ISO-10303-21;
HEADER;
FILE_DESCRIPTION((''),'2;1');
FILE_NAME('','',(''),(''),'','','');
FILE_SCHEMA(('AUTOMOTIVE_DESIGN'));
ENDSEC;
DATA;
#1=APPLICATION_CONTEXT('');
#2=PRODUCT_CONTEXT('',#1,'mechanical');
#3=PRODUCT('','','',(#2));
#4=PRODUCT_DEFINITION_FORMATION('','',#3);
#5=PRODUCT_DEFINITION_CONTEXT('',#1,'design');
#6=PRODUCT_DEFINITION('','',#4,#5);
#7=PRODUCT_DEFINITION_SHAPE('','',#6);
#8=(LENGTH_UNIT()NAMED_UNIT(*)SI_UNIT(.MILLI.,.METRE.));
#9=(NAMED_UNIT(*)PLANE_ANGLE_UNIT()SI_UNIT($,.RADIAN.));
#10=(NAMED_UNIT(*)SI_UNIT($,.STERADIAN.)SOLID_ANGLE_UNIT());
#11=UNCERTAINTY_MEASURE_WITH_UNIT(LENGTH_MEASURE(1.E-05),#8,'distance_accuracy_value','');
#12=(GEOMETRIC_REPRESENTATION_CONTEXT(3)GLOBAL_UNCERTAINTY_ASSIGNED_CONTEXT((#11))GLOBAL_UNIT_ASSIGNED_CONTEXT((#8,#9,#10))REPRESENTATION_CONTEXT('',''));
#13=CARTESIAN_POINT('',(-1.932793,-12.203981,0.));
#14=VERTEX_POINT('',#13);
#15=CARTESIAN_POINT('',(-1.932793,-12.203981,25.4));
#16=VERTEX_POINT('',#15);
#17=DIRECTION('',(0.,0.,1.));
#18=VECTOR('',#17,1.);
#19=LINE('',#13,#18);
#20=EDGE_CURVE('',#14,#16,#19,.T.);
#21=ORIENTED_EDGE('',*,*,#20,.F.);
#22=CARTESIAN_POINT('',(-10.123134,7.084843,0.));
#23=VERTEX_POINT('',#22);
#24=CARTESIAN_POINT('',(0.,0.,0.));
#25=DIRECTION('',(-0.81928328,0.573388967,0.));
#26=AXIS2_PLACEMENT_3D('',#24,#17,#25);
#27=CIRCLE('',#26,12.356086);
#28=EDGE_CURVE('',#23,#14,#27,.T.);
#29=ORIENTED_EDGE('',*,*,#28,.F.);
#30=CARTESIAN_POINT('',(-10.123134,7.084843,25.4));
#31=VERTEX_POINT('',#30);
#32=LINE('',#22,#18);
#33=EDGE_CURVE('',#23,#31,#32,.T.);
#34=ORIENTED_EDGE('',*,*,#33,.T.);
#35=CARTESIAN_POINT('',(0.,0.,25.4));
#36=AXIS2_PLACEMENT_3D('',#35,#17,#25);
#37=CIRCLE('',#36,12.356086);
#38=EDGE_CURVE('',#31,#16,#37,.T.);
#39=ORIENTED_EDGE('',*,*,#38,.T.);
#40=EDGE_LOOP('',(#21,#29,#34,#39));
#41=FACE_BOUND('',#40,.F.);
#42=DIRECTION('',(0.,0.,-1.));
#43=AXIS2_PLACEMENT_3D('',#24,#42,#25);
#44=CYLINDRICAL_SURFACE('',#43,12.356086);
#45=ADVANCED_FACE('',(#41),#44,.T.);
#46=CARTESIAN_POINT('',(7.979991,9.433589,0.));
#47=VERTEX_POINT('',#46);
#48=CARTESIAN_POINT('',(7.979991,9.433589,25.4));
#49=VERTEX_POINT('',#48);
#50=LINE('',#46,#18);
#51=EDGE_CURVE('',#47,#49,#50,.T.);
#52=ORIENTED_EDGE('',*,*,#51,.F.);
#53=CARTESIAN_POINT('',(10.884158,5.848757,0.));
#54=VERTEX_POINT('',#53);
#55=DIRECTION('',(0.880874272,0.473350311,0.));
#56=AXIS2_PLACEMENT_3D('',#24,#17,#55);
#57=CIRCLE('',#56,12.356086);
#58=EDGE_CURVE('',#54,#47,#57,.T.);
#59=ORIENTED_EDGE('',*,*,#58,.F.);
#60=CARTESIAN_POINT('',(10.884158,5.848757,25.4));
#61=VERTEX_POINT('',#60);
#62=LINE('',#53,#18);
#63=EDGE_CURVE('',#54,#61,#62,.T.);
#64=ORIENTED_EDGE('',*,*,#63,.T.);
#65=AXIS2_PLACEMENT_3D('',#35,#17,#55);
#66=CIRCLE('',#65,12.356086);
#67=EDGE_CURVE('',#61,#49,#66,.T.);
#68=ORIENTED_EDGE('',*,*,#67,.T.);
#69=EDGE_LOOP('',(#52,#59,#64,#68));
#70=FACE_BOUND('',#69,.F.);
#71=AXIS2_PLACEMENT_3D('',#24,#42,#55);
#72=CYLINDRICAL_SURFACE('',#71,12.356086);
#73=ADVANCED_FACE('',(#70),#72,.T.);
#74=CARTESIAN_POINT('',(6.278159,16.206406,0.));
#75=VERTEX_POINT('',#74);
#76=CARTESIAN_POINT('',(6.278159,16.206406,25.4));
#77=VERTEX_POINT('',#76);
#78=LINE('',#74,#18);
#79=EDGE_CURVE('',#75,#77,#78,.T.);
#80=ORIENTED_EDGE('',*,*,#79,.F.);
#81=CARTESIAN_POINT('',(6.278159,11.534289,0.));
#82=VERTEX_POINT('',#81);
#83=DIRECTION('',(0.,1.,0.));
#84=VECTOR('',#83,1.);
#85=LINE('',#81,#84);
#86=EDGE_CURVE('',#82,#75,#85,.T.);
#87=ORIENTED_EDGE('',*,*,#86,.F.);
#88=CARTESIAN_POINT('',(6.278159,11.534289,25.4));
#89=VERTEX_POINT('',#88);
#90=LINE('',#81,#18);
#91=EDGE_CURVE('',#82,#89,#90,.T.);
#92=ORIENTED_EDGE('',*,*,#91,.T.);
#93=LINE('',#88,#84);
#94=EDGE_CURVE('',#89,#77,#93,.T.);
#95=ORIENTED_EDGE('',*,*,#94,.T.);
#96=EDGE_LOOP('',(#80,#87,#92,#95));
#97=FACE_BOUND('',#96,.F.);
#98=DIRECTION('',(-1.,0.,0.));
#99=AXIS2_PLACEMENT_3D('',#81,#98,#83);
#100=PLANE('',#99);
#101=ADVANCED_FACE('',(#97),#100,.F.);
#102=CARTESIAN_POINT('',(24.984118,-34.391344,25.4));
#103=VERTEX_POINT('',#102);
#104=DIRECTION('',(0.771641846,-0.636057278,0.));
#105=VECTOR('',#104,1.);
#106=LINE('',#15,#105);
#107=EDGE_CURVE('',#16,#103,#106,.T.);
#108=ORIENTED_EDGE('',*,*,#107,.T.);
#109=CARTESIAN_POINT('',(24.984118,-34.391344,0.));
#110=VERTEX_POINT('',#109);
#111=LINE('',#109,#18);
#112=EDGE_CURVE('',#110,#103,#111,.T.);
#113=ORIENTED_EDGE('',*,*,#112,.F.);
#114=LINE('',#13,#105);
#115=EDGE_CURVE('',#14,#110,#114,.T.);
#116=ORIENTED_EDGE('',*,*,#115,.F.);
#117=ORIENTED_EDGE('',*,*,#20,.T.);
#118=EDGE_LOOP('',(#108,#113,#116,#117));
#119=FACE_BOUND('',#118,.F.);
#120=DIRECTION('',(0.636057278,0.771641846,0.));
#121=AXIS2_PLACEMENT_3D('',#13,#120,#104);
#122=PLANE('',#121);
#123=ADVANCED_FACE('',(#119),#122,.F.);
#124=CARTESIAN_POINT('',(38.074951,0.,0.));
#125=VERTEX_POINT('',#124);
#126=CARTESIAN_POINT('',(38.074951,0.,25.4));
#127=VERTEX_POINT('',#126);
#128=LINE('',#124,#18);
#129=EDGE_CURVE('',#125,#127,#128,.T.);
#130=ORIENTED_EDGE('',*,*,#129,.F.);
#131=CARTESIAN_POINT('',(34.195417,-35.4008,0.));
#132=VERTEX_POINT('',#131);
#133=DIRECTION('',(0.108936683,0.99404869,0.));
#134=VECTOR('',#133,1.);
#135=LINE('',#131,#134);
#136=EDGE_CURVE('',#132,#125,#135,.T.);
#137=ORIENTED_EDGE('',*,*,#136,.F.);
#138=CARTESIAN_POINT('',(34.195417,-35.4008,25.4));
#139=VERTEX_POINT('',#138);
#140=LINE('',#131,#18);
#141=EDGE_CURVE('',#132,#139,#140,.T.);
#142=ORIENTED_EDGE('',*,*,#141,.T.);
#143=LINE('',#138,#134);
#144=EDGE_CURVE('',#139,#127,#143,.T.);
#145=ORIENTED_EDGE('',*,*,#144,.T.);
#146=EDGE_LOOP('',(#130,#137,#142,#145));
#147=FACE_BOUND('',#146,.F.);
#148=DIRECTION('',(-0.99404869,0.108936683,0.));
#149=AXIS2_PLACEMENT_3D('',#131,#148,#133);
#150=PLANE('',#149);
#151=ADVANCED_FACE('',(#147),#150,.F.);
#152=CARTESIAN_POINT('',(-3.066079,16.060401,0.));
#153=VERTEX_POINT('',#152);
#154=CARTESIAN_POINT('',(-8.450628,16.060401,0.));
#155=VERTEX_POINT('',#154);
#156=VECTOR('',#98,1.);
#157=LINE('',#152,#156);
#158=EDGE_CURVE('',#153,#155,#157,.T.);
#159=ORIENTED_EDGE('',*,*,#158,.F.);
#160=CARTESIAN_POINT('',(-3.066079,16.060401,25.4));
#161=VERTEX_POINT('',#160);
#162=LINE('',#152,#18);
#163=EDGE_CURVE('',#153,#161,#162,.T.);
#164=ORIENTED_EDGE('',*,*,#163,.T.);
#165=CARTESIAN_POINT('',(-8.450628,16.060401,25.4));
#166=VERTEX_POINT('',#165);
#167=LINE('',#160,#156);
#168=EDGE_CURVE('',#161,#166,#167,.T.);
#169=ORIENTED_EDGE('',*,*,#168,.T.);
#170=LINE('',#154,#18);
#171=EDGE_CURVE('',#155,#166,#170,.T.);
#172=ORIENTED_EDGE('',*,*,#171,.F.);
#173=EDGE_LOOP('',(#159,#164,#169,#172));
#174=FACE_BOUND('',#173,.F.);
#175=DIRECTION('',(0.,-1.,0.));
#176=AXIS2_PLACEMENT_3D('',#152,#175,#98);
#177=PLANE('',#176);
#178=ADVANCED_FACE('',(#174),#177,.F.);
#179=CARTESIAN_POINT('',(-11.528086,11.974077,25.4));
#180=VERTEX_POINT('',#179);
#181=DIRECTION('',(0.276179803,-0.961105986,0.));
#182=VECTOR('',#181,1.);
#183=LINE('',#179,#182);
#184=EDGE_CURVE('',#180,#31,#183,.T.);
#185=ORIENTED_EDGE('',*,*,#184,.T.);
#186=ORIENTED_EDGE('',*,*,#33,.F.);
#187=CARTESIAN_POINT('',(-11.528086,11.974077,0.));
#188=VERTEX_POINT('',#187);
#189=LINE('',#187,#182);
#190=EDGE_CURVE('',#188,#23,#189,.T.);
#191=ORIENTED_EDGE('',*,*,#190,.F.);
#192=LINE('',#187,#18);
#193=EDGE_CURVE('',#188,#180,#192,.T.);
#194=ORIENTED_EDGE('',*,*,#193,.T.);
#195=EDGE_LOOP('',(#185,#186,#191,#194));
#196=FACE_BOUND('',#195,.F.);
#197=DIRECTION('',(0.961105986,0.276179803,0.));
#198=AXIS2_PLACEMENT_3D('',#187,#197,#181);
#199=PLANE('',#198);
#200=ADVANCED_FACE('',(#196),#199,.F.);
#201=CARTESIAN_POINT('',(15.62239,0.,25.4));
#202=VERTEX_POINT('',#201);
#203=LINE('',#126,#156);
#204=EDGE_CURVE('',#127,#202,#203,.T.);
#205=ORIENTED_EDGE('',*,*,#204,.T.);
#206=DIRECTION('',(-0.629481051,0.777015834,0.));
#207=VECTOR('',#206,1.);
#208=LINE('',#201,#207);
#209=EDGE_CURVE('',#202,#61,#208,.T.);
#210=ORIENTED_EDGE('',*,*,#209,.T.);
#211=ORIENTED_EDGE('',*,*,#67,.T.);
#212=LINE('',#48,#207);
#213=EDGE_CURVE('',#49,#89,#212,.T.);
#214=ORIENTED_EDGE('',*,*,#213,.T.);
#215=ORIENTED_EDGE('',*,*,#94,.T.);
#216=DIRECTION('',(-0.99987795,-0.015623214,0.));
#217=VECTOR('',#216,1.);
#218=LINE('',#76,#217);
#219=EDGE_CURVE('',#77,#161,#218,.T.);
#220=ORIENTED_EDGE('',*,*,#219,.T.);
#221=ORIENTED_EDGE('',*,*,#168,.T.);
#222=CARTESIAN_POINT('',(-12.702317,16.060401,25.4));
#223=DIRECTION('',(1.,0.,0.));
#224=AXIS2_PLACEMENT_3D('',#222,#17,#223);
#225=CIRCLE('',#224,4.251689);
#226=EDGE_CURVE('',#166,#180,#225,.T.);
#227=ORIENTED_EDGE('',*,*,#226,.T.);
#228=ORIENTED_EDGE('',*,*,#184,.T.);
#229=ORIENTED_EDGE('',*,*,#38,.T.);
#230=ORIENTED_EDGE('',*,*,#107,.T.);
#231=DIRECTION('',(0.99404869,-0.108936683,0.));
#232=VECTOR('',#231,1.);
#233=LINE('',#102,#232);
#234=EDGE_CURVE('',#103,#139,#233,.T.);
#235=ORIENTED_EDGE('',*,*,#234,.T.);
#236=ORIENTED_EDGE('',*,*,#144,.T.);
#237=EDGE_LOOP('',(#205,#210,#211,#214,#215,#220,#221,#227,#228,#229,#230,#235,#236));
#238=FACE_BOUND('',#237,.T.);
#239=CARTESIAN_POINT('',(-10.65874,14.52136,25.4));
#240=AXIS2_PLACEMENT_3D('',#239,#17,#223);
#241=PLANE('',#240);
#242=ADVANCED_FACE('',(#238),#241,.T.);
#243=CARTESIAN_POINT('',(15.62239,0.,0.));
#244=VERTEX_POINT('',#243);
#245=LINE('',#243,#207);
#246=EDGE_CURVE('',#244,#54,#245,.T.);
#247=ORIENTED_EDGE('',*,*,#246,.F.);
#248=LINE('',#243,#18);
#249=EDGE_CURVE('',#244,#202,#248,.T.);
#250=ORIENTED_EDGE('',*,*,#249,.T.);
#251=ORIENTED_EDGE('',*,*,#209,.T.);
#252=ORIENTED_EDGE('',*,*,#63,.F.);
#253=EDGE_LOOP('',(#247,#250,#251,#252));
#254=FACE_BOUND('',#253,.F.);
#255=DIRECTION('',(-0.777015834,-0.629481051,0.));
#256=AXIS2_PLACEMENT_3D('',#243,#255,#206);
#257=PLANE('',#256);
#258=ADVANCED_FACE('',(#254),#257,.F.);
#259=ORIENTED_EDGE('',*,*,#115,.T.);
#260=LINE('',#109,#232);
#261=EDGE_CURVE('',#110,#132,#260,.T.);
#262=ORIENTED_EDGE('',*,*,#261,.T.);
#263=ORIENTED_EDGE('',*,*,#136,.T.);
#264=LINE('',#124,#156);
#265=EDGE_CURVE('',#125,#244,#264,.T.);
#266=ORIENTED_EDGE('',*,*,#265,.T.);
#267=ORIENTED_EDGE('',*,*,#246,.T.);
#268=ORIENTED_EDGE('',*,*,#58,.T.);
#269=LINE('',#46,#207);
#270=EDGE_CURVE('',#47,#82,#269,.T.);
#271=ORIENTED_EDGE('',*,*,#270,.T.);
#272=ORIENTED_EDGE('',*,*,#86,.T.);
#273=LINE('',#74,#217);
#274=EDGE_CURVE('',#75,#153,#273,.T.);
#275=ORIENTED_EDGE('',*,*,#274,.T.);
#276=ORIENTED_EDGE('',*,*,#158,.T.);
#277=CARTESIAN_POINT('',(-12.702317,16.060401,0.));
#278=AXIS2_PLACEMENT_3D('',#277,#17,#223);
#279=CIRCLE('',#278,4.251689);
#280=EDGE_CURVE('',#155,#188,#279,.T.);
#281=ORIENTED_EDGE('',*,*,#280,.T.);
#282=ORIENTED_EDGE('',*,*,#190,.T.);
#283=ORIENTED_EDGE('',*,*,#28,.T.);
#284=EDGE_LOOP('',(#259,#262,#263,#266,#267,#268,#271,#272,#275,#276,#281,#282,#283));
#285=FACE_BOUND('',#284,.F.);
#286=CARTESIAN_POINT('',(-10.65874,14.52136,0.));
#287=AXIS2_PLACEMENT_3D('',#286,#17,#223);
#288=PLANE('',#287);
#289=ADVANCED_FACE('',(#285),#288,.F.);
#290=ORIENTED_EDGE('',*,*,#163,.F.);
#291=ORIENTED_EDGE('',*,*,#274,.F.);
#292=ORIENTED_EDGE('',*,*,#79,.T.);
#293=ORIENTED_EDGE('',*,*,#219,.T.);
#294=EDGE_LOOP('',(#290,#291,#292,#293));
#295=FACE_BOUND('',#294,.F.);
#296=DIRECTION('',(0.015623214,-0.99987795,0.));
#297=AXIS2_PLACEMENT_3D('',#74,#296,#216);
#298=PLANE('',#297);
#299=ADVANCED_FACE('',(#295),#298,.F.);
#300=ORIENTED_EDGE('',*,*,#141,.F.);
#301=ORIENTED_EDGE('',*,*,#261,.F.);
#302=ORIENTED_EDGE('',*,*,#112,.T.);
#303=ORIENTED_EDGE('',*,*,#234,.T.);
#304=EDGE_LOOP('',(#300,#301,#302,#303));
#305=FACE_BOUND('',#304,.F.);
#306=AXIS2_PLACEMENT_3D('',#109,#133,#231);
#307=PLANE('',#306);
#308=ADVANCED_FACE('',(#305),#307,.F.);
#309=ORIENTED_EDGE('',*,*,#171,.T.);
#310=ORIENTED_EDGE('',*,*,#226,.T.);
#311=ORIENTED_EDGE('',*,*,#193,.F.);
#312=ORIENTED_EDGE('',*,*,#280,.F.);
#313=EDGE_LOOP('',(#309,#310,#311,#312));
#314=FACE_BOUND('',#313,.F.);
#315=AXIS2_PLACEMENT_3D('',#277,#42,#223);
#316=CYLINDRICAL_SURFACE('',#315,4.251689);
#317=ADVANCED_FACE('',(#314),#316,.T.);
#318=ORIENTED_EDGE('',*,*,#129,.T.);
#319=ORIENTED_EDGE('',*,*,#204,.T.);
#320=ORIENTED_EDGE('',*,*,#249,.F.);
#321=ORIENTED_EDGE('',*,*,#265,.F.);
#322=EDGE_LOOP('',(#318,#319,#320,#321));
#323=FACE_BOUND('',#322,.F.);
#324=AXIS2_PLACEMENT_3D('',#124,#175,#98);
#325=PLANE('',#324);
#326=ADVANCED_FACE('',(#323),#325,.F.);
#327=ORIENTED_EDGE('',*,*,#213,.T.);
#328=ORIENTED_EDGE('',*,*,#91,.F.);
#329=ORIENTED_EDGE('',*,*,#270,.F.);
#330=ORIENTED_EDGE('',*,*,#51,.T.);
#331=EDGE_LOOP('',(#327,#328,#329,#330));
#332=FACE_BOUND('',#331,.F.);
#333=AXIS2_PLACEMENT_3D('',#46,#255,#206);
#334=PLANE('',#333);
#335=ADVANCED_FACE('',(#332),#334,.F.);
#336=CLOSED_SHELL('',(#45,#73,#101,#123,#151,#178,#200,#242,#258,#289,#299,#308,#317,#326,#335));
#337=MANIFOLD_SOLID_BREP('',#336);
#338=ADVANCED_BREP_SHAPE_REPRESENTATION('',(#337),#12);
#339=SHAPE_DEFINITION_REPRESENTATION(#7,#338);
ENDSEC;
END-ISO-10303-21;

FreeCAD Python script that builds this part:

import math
import FreeCAD as App
import Part
import Sketcher
Q = App.Units.Quantity

doc = App.newDocument("Part")
body = doc.addObject("PartDesign::Body", "Body")

sketch1 = doc.addObject("Sketcher::SketchObject", "Sketch")
body.addObject(sketch1)
sketch1.AttachmentSupport = (doc.XY_Plane, [""])
sketch1.MapMode = "FlatFace"
sketch1.addGeometry([
    Part.ArcOfCircle(Part.Circle(App.Vector(-12.7, 16.1, 0), App.Vector(0, 0, 1), 4.3), math.radians(0), math.radians(286)),
    Part.LineSegment(App.Vector(-11.5, 12, 0), App.Vector(-10.1, 7.1, 0)),
    Part.ArcOfCircle(Part.Circle(App.Vector(0, 0, 0), App.Vector(0, 0, 1), 12.4), math.radians(145), math.radians(261)),
    Part.LineSegment(App.Vector(-1.9, -12.2, 0), App.Vector(25, -34.4, 0)),
    Part.LineSegment(App.Vector(25, -34.4, 0), App.Vector(34.2, -35.4, 0)),
    Part.LineSegment(App.Vector(34.2, -35.4, 0), App.Vector(38.1, 0, 0)),
    Part.LineSegment(App.Vector(38.1, 0, 0), App.Vector(15.6, 0, 0)),
    Part.LineSegment(App.Vector(15.6, 0, 0), App.Vector(10.9, 5.8, 0)),
    Part.ArcOfCircle(Part.Circle(App.Vector(0, 0, 0), App.Vector(0, 0, 1), 12.4), math.radians(28), math.radians(50)),
    Part.LineSegment(App.Vector(8, 9.4, 0), App.Vector(6.3, 11.5, 0)),
    Part.LineSegment(App.Vector(6.3, 11.5, 0), App.Vector(6.3, 16.2, 0)),
    Part.LineSegment(App.Vector(6.3, 16.2, 0), App.Vector(-3.1, 16.1, 0)),
    Part.LineSegment(App.Vector(-3.1, 16.1, 0), App.Vector(-8.5, 16.1, 0)),
], False)
sketch1.addConstraint([
    Sketcher.Constraint("Coincident", 0, 2, 1, 1),
    Sketcher.Constraint("Coincident", 1, 2, 2, 1),
    Sketcher.Constraint("Coincident", 2, 2, 3, 1),
    Sketcher.Constraint("Coincident", 3, 2, 4, 1),
    Sketcher.Constraint("Coincident", 4, 2, 5, 1),
    Sketcher.Constraint("Coincident", 5, 2, 6, 1),
    Sketcher.Constraint("Coincident", 6, 2, 7, 1),
    Sketcher.Constraint("Coincident", 7, 2, 8, 1),
    Sketcher.Constraint("Coincident", 8, 2, 9, 1),
    Sketcher.Constraint("Coincident", 9, 2, 10, 1),
    Sketcher.Constraint("Coincident", 10, 2, 11, 1),
    Sketcher.Constraint("Coincident", 11, 2, 12, 1),
    Sketcher.Constraint("Coincident", 12, 2, 0, 1),
    Sketcher.Constraint("Horizontal", 6),
    Sketcher.Constraint("Vertical", 10),
    Sketcher.Constraint("Horizontal", 12),
    Sketcher.Constraint("Coincident", 2, 3, -1, 1),
    Sketcher.Constraint("Coincident", 8, 3, -1, 1),
    Sketcher.Constraint("Equal", 2, 8),
    Sketcher.Constraint("PointOnObject", 5, 2, -1),
    Sketcher.Constraint("Perpendicular", 4, 5),
    Sketcher.Constraint("Parallel", 7, 9),
    Sketcher.Constraint("Horizontal", 0, 3, 11, 2),
    Sketcher.Constraint("Radius", 0, Q("4.251689 mm")),
    Sketcher.Constraint("Radius", 2, Q("12.356086 mm")),
    Sketcher.Constraint("DistanceX", 6, 2, 6, 1, Q("22.452561 mm")),
    Sketcher.Constraint("DistanceX", 12, 2, 12, 1, Q("5.384549 mm")),
    Sketcher.Constraint("DistanceY", -1, 1, 0, 3, Q("16.060401 mm")),
    Sketcher.Constraint("DistanceY", 4, 2, -1, 1, Q("35.4008 mm")),
    Sketcher.Constraint("DistanceX", 3, 2, 4, 2, Q("9.2113 mm")),
    Sketcher.Constraint("DistanceX", 8, 2, 6, 2, Q("7.642399 mm")),
    Sketcher.Constraint("DistanceY", 8, 2, 9, 2, Q("2.1007 mm")),
    Sketcher.Constraint("DistanceX", 9, 2, 7, 2, Q("4.605999 mm")),
    Sketcher.Constraint("Distance", 1, Q("5.087091 mm")),
    Sketcher.Constraint("Distance", 3, Q("34.882648 mm")),
    Sketcher.Constraint("Distance", 9, Q("2.703549 mm")),
    Sketcher.Constraint("DistanceY", 10, 1, 10, 2, Q("4.672118 mm")),
    Sketcher.Constraint("DistanceY", 2, 2, -1, 1, Q("12.203981 mm")),
    Sketcher.Constraint("DistanceX", 11, 2, -1, 1, Q("3.066079 mm")),
    Sketcher.Constraint("DistanceX", 0, 3, 0, 2, Q("1.174231 mm")),
])
pad1 = doc.addObject("PartDesign::Pad", "Pad")
body.addObject(pad1)
pad1.Profile = sketch1
pad1.Length = Q("1 in")

doc.recompute()
